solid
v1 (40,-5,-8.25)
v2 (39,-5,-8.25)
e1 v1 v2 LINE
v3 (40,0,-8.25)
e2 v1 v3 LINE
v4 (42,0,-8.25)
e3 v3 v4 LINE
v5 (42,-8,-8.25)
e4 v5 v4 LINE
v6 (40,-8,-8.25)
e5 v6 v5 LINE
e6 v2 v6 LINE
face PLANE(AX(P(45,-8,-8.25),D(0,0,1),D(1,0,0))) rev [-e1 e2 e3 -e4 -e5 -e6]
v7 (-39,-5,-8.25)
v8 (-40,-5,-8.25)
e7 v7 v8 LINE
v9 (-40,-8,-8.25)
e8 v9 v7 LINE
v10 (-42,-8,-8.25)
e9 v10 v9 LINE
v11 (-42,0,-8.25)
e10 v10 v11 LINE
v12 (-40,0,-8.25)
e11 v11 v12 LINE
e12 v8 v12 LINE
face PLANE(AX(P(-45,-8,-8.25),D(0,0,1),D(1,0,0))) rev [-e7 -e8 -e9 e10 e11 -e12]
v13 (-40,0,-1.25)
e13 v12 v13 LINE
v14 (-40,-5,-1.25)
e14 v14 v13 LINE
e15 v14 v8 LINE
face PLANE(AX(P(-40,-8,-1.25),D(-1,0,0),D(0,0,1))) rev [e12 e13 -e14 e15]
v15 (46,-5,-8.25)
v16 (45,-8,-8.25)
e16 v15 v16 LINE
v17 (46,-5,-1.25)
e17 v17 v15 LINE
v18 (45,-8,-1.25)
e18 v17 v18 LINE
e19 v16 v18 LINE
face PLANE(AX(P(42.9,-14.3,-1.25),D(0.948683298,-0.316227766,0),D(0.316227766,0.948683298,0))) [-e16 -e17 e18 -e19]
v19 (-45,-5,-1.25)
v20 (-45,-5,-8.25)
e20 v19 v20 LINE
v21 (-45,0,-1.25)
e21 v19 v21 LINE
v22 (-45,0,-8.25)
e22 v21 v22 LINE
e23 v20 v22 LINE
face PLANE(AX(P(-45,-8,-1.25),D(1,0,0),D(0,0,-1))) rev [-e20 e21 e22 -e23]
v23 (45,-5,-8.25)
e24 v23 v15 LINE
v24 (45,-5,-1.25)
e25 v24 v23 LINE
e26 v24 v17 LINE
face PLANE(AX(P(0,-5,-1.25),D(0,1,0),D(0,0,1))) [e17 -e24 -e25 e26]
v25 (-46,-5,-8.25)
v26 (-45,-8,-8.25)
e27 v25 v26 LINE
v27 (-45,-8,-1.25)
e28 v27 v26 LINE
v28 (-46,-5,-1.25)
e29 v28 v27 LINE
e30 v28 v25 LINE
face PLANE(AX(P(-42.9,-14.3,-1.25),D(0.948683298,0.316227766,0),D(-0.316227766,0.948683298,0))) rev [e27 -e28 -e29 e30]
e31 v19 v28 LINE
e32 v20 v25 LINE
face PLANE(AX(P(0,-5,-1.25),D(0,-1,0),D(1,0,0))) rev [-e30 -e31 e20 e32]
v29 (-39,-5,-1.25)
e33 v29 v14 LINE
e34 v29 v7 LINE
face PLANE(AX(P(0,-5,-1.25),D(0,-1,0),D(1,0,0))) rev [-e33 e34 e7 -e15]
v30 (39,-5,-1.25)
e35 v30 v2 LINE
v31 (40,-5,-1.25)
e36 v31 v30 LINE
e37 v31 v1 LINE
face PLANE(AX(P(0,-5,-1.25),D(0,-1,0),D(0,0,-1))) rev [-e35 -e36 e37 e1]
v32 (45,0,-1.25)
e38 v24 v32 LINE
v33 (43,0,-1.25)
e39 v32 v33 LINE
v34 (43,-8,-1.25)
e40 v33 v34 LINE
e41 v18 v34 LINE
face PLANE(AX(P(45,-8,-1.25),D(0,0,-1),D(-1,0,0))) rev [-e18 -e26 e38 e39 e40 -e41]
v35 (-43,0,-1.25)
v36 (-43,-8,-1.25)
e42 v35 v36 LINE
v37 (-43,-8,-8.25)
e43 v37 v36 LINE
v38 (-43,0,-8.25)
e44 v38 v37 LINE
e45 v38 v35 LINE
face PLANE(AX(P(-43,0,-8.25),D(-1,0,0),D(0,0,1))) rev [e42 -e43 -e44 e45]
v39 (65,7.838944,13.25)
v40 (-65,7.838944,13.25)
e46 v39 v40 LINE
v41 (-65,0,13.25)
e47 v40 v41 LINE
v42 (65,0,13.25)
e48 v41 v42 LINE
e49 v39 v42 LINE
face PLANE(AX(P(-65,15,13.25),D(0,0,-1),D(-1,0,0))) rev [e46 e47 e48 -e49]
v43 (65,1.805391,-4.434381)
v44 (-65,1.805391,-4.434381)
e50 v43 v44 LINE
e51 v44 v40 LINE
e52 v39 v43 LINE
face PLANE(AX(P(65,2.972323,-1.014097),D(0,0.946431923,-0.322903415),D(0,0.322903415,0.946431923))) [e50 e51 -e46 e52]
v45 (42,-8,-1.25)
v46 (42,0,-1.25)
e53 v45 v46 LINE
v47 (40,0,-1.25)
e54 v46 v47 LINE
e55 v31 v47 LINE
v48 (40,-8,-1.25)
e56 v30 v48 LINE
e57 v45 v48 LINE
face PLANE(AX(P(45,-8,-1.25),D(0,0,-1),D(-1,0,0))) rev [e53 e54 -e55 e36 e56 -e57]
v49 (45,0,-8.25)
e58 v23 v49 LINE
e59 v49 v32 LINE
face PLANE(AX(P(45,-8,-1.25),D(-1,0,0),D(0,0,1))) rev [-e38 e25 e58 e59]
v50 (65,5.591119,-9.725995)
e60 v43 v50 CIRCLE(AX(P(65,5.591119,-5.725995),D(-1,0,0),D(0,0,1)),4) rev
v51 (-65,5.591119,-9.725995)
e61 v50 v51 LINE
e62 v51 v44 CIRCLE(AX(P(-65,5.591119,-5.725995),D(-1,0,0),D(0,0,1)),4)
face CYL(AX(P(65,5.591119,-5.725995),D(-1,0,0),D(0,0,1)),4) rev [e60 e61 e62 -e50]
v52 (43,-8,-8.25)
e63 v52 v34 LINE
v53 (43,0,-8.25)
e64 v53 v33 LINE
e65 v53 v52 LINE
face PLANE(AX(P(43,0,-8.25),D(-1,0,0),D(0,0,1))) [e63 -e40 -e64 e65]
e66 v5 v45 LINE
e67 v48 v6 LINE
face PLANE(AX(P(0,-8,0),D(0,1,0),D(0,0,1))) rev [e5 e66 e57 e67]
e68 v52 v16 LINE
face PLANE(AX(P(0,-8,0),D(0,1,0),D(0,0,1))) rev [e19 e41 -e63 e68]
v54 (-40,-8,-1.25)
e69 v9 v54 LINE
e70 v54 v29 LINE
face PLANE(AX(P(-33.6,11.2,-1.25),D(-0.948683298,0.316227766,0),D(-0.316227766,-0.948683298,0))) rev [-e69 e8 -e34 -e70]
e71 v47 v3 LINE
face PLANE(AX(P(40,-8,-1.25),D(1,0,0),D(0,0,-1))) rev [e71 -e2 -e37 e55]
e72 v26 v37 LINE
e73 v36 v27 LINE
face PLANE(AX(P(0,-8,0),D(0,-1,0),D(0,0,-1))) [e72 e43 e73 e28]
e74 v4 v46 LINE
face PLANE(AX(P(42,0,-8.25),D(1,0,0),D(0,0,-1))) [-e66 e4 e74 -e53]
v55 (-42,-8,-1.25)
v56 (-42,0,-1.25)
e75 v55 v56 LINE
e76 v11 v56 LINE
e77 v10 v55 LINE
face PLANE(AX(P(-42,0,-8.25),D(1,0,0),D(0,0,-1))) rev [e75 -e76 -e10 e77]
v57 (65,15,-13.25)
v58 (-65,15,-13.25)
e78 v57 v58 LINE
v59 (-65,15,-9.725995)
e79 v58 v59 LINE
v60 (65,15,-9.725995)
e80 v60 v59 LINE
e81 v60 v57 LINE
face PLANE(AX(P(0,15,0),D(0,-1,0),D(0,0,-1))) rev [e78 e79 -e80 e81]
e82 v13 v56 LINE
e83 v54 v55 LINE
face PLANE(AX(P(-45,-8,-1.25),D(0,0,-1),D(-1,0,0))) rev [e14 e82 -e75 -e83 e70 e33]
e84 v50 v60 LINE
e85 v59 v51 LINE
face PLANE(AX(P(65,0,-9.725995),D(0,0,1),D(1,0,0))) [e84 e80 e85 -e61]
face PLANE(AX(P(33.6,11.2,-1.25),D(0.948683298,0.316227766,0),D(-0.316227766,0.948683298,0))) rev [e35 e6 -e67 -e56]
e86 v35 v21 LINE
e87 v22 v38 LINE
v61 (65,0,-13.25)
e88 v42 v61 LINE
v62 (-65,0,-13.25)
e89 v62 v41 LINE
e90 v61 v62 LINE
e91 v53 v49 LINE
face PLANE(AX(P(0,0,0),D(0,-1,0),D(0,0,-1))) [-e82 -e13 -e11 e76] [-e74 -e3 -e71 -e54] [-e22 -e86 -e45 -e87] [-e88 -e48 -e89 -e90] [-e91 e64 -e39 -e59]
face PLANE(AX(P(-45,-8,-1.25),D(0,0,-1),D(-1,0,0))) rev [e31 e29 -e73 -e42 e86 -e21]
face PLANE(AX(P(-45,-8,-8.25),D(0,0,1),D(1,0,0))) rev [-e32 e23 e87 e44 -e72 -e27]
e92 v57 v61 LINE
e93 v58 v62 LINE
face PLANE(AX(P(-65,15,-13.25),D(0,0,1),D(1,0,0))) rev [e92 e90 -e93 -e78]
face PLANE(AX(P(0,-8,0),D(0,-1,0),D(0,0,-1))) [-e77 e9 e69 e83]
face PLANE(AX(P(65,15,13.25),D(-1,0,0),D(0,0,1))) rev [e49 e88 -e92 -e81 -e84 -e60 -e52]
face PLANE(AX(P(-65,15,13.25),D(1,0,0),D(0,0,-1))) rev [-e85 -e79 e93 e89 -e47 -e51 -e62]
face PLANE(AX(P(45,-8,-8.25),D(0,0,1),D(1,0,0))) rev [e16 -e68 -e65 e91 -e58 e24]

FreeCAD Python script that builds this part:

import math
import FreeCAD as App
import Part
import Sketcher

V = App.Vector
Q = App.Units.Quantity

doc = App.newDocument("Part")
body = doc.addObject("PartDesign::Body", "Body")

# Sketch on XZ plane
sketch1 = body.newObject("Sketcher::SketchObject", "Sketch")
sketch1.AttachmentSupport = (doc.getObject("XZ_Plane"), [""])
sketch1.MapMode = "FlatFace"
sketch1.addGeometry([
    Part.LineSegment(V(-65, -13, 0), V(-65, 13, 0)),
    Part.LineSegment(V(-65, 13, 0), V(65, 13, 0)),
    Part.LineSegment(V(65, 13, 0), V(65, -13, 0)),
    Part.LineSegment(V(65, -13, 0), V(-65, -13, 0)),
], False)
sketch1.addConstraint([
    Sketcher.Constraint("Coincident", 0, 2, 1, 1),
    Sketcher.Constraint("Coincident", 1, 2, 2, 1),
    Sketcher.Constraint("Coincident", 2, 2, 3, 1),
    Sketcher.Constraint("Coincident", 3, 2, 0, 1),
    Sketcher.Constraint("Vertical", 0),
    Sketcher.Constraint("Horizontal", 1),
    Sketcher.Constraint("Vertical", 2),
    Sketcher.Constraint("Horizontal", 3),
    Sketcher.Constraint("Symmetric", 0, 2, 2, 2, -1, 1),
    Sketcher.Constraint("DistanceX", 1, 1, 1, 2, Q("130 mm")),
    Sketcher.Constraint("DistanceY", 0, 1, 0, 2, Q("26.5 mm")),
])
pad1 = body.newObject("PartDesign::Pad", "Pad")
pad1.Profile = sketch1
pad1.Length = 15
pad1.Reversed = True

# Sketch on YZ plane
sketch2 = body.newObject("Sketcher::SketchObject", "Sketch001")
sketch2.AttachmentSupport = (doc.getObject("YZ_Plane"), [""])
sketch2.MapMode = "FlatFace"
sketch2.AttachmentOffset = App.Placement(V(0, 0, -65), App.Rotation())
sketch2.addGeometry([
    Part.LineSegment(V(1.8, -4.4, 0), V(7.8, 13.2, 0)),  # 0
    Part.LineSegment(V(7.8, 13.2, 0), V(15, 13.2, 0)),  # 1
    Part.LineSegment(V(15, 13.2, 0), V(15, -9.7, 0)),  # 2
    Part.LineSegment(V(15, -9.7, 0), V(5.6, -9.7, 0)),  # 3
    Part.ArcOfCircle(Part.Circle(V(5.6, -5.7, 0), V(0, 0, 1), 4), math.radians(161), math.radians(270)),  # 4
], False)
sketch2.addConstraint([
    Sketcher.Constraint("Coincident", 0, 2, 1, 1),
    Sketcher.Constraint("Coincident", 1, 2, 2, 1),
    Sketcher.Constraint("Coincident", 2, 2, 3, 1),
    Sketcher.Constraint("Tangent", 3, 2, 4, 2),
    Sketcher.Constraint("Tangent", 4, 1, 0, 1),
    Sketcher.Constraint("Horizontal", 1),
    Sketcher.Constraint("Vertical", 2),
    Sketcher.Constraint("Horizontal", 3),
    Sketcher.Constraint("Radius", 4, Q("4 mm")),
    Sketcher.Constraint("DistanceX", -1, 1, 1, 2, Q("15 mm")),
    Sketcher.Constraint("DistanceY", -1, 1, 0, 2, Q("13.25 mm")),
    Sketcher.Constraint("DistanceX", 3, 2, 3, 1, Q("9.408881 mm")),
    Sketcher.Constraint("Distance", 0, Q("18.685318 mm")),
    Sketcher.Constraint("DistanceX", 1, 1, 1, 2, Q("7.161056 mm")),
])
pocket1 = body.newObject("PartDesign::Pocket", "Pocket")
pocket1.Profile = sketch2
pocket1.Type = "ThroughAll"
pocket1.Midplane = True

# Sketch on XZ plane
sketch3 = body.newObject("Sketcher::SketchObject", "Sketch002")
sketch3.AttachmentSupport = (doc.getObject("XZ_Plane"), [""])
sketch3.MapMode = "FlatFace"
sketch3.addGeometry([
    Part.LineSegment(V(-45, -1, 0), V(-45, -8, 0)),  # 0
    Part.LineSegment(V(-45, -8, 0), V(-40, -8, 0)),  # 1
    Part.LineSegment(V(-40, -8, 0), V(-40, -1, 0)),  # 2
    Part.LineSegment(V(-40, -1, 0), V(-45, -1, 0)),  # 3
    Part.LineSegment(V(40, -1, 0), V(40, -8, 0)),  # 4
    Part.LineSegment(V(40, -8, 0), V(45, -8, 0)),  # 5
    Part.LineSegment(V(45, -8, 0), V(45, -1, 0)),  # 6
    Part.LineSegment(V(45, -1, 0), V(40, -1, 0)),  # 7
], False)
sketch3.addConstraint([
    Sketcher.Constraint("Coincident", 0, 2, 1, 1),
    Sketcher.Constraint("Coincident", 1, 2, 2, 1),
    Sketcher.Constraint("Coincident", 2, 2, 3, 1),
    Sketcher.Constraint("Coincident", 3, 2, 0, 1),
    Sketcher.Constraint("Coincident", 4, 2, 5, 1),
    Sketcher.Constraint("Coincident", 5, 2, 6, 1),
    Sketcher.Constraint("Coincident", 6, 2, 7, 1),
    Sketcher.Constraint("Coincident", 7, 2, 4, 1),
    Sketcher.Constraint("Vertical", 0),
    Sketcher.Constraint("Horizontal", 1),
    Sketcher.Constraint("Vertical", 2),
    Sketcher.Constraint("Horizontal", 3),
    Sketcher.Constraint("Vertical", 4),
    Sketcher.Constraint("Horizontal", 5),
    Sketcher.Constraint("Vertical", 6),
    Sketcher.Constraint("Horizontal", 7),
    Sketcher.Constraint("Symmetric", 1, 2, 4, 2, -2),
    Sketcher.Constraint("Symmetric", 3, 2, 6, 2, -2),
    Sketcher.Constraint("DistanceX", 1, 1, 1, 2, Q("5 mm")),
    Sketcher.Constraint("DistanceY", 0, 2, 0, 1, Q("7 mm")),
    Sketcher.Constraint("DistanceX", 0, 2, -1, 1, Q("45 mm")),
    Sketcher.Constraint("DistanceY", 0, 2, -1, 1, Q("8.25 mm")),
])
pad2 = body.newObject("PartDesign::Pad", "Pad001")
pad2.Profile = sketch3
pad2.Length = 8

# Sketch on XY plane
sketch4 = body.newObject("Sketcher::SketchObject", "Sketch003")
sketch4.AttachmentSupport = (doc.getObject("XY_Plane"), [""])
sketch4.MapMode = "FlatFace"
sketch4.AttachmentOffset = App.Placement(V(0, 0, -4.75), App.Rotation())
sketch4.addGeometry([
    Part.LineSegment(V(-45, -8, 0), V(-45, -5, 0)),  # 0
    Part.LineSegment(V(-45, -5, 0), V(-46, -5, 0)),  # 1
    Part.LineSegment(V(-46, -5, 0), V(-45, -8, 0)),  # 2
    Part.LineSegment(V(-40, -5, 0), V(-40, -8, 0)),  # 3
    Part.LineSegment(V(-40, -8, 0), V(-39, -5, 0)),  # 4
    Part.LineSegment(V(-39, -5, 0), V(-40, -5, 0)),  # 5
    Part.LineSegment(V(46, -5, 0), V(45, -5, 0)),  # 6
    Part.LineSegment(V(45, -5, 0), V(45, -8, 0)),  # 7
    Part.LineSegment(V(45, -8, 0), V(46, -5, 0)),  # 8
    Part.LineSegment(V(40, -8, 0), V(40, -5, 0)),  # 9
    Part.LineSegment(V(40, -5, 0), V(39, -5, 0)),  # 10
    Part.LineSegment(V(39, -5, 0), V(40, -8, 0)),  # 11
], False)
sketch4.addConstraint([
    Sketcher.Constraint("Coincident", 0, 2, 1, 1),
    Sketcher.Constraint("Coincident", 1, 2, 2, 1),
    Sketcher.Constraint("Coincident", 2, 2, 0, 1),
    Sketcher.Constraint("Coincident", 3, 2, 4, 1),
    Sketcher.Constraint("Coincident", 4, 2, 5, 1),
    Sketcher.Constraint("Coincident", 5, 2, 3, 1),
    Sketcher.Constraint("Coincident", 6, 2, 7, 1),
    Sketcher.Constraint("Coincident", 7, 2, 8, 1),
    Sketcher.Constraint("Coincident", 8, 2, 6, 1),
    Sketcher.Constraint("Coincident", 9, 2, 10, 1),
    Sketcher.Constraint("Coincident", 10, 2, 11, 1),
    Sketcher.Constraint("Coincident", 11, 2, 9, 1),
    Sketcher.Constraint("Vertical", 0),
    Sketcher.Constraint("Horizontal", 1),
    Sketcher.Constraint("Vertical", 3),
    Sketcher.Constraint("Horizontal", 5),
    Sketcher.Constraint("Horizontal", 6),
    Sketcher.Constraint("Vertical", 7),
    Sketcher.Constraint("Vertical", 9),
    Sketcher.Constraint("Horizontal", 10),
    Sketcher.Constraint("Symmetric", 0, 2, 6, 2, -2),
    Sketcher.Constraint("Symmetric", 5, 2, 9, 2, -2),
    Sketcher.Constraint("Parallel", 4, 8),
    Sketcher.Constraint("Parallel", 2, 11),
    Sketcher.Constraint("Horizontal", 2, 2, 3, 2),
    Sketcher.Constraint("Horizontal", 1, 2, 4, 2),
    Sketcher.Constraint("Horizontal", 3, 2, 7, 2),
    Sketcher.Constraint("Horizontal", 7, 2, 11, 2),
    Sketcher.Constraint("Equal", 1, 5),
    Sketcher.Constraint("DistanceX", 1, 2, 1, 1, Q("1 mm")),
    Sketcher.Constraint("DistanceY", 0, 1, 0, 2, Q("3 mm")),
    Sketcher.Constraint("DistanceX", 0, 2, -1, 1, Q("45 mm")),
    Sketcher.Constraint("DistanceY", 0, 2, -1, 1, Q("5 mm")),
    Sketcher.Constraint("DistanceX", 3, 2, -1, 1, Q("40 mm")),
])
pad3 = body.newObject("PartDesign::Pad", "Pad002")
pad3.Profile = sketch4
pad3.Length = 7
pad3.Midplane = True

# Sketch on XY plane
sketch5 = body.newObject("Sketcher::SketchObject", "Sketch004")
sketch5.AttachmentSupport = (doc.getObject("XY_Plane"), [""])
sketch5.MapMode = "FlatFace"
sketch5.AttachmentOffset = App.Placement(V(0, 0, -4.75), App.Rotation())
sketch5.addGeometry([
    Part.LineSegment(V(-43, 0, 0), V(-43, -8, 0)),  # 0
    Part.LineSegment(V(-43, -8, 0), V(-42, -8, 0)),  # 1
    Part.LineSegment(V(-42, -8, 0), V(-42, 0, 0)),  # 2
    Part.LineSegment(V(-42, 0, 0), V(-43, 0, 0)),  # 3
    Part.LineSegment(V(42, 0, 0), V(42, -8, 0)),  # 4
    Part.LineSegment(V(42, -8, 0), V(43, -8, 0)),  # 5
    Part.LineSegment(V(43, -8, 0), V(43, 0, 0)),  # 6
    Part.LineSegment(V(43, 0, 0), V(42, 0, 0)),  # 7
], False)
sketch5.addConstraint([
    Sketcher.Constraint("Coincident", 0, 2, 1, 1),
    Sketcher.Constraint("Coincident", 1, 2, 2, 1),
    Sketcher.Constraint("Coincident", 2, 2, 3, 1),
    Sketcher.Constraint("Coincident", 3, 2, 0, 1),
    Sketcher.Constraint("Coincident", 4, 2, 5, 1),
    Sketcher.Constraint("Coincident", 5, 2, 6, 1),
    Sketcher.Constraint("Coincident", 6, 2, 7, 1),
    Sketcher.Constraint("Coincident", 7, 2, 4, 1),
    Sketcher.Constraint("Vertical", 0),
    Sketcher.Constraint("Horizontal", 1),
    Sketcher.Constraint("Vertical", 2),
    Sketcher.Constraint("Horizontal", 3),
    Sketcher.Constraint("Vertical", 4),
    Sketcher.Constraint("Horizontal", 5),
    Sketcher.Constraint("Vertical", 6),
    Sketcher.Constraint("Horizontal", 7),
    Sketcher.Constraint("Symmetric", 3, 2, 6, 2, -1, 1),
    Sketcher.Constraint("Symmetric", 1, 2, 4, 2, -2),
    Sketcher.Constraint("PointOnObject", 2, 2, -1),
    Sketcher.Constraint("DistanceX", 1, 1, 1, 2, Q("1 mm")),
    Sketcher.Constraint("DistanceY", 0, 2, 0, 1, Q("8 mm")),
    Sketcher.Constraint("DistanceX", 0, 2, -1, 1, Q("43 mm")),
])
pocket2 = body.newObject("PartDesign::Pocket", "Pocket001")
pocket2.Profile = sketch5
pocket2.Length = 7
pocket2.Midplane = True

doc.recompute()
